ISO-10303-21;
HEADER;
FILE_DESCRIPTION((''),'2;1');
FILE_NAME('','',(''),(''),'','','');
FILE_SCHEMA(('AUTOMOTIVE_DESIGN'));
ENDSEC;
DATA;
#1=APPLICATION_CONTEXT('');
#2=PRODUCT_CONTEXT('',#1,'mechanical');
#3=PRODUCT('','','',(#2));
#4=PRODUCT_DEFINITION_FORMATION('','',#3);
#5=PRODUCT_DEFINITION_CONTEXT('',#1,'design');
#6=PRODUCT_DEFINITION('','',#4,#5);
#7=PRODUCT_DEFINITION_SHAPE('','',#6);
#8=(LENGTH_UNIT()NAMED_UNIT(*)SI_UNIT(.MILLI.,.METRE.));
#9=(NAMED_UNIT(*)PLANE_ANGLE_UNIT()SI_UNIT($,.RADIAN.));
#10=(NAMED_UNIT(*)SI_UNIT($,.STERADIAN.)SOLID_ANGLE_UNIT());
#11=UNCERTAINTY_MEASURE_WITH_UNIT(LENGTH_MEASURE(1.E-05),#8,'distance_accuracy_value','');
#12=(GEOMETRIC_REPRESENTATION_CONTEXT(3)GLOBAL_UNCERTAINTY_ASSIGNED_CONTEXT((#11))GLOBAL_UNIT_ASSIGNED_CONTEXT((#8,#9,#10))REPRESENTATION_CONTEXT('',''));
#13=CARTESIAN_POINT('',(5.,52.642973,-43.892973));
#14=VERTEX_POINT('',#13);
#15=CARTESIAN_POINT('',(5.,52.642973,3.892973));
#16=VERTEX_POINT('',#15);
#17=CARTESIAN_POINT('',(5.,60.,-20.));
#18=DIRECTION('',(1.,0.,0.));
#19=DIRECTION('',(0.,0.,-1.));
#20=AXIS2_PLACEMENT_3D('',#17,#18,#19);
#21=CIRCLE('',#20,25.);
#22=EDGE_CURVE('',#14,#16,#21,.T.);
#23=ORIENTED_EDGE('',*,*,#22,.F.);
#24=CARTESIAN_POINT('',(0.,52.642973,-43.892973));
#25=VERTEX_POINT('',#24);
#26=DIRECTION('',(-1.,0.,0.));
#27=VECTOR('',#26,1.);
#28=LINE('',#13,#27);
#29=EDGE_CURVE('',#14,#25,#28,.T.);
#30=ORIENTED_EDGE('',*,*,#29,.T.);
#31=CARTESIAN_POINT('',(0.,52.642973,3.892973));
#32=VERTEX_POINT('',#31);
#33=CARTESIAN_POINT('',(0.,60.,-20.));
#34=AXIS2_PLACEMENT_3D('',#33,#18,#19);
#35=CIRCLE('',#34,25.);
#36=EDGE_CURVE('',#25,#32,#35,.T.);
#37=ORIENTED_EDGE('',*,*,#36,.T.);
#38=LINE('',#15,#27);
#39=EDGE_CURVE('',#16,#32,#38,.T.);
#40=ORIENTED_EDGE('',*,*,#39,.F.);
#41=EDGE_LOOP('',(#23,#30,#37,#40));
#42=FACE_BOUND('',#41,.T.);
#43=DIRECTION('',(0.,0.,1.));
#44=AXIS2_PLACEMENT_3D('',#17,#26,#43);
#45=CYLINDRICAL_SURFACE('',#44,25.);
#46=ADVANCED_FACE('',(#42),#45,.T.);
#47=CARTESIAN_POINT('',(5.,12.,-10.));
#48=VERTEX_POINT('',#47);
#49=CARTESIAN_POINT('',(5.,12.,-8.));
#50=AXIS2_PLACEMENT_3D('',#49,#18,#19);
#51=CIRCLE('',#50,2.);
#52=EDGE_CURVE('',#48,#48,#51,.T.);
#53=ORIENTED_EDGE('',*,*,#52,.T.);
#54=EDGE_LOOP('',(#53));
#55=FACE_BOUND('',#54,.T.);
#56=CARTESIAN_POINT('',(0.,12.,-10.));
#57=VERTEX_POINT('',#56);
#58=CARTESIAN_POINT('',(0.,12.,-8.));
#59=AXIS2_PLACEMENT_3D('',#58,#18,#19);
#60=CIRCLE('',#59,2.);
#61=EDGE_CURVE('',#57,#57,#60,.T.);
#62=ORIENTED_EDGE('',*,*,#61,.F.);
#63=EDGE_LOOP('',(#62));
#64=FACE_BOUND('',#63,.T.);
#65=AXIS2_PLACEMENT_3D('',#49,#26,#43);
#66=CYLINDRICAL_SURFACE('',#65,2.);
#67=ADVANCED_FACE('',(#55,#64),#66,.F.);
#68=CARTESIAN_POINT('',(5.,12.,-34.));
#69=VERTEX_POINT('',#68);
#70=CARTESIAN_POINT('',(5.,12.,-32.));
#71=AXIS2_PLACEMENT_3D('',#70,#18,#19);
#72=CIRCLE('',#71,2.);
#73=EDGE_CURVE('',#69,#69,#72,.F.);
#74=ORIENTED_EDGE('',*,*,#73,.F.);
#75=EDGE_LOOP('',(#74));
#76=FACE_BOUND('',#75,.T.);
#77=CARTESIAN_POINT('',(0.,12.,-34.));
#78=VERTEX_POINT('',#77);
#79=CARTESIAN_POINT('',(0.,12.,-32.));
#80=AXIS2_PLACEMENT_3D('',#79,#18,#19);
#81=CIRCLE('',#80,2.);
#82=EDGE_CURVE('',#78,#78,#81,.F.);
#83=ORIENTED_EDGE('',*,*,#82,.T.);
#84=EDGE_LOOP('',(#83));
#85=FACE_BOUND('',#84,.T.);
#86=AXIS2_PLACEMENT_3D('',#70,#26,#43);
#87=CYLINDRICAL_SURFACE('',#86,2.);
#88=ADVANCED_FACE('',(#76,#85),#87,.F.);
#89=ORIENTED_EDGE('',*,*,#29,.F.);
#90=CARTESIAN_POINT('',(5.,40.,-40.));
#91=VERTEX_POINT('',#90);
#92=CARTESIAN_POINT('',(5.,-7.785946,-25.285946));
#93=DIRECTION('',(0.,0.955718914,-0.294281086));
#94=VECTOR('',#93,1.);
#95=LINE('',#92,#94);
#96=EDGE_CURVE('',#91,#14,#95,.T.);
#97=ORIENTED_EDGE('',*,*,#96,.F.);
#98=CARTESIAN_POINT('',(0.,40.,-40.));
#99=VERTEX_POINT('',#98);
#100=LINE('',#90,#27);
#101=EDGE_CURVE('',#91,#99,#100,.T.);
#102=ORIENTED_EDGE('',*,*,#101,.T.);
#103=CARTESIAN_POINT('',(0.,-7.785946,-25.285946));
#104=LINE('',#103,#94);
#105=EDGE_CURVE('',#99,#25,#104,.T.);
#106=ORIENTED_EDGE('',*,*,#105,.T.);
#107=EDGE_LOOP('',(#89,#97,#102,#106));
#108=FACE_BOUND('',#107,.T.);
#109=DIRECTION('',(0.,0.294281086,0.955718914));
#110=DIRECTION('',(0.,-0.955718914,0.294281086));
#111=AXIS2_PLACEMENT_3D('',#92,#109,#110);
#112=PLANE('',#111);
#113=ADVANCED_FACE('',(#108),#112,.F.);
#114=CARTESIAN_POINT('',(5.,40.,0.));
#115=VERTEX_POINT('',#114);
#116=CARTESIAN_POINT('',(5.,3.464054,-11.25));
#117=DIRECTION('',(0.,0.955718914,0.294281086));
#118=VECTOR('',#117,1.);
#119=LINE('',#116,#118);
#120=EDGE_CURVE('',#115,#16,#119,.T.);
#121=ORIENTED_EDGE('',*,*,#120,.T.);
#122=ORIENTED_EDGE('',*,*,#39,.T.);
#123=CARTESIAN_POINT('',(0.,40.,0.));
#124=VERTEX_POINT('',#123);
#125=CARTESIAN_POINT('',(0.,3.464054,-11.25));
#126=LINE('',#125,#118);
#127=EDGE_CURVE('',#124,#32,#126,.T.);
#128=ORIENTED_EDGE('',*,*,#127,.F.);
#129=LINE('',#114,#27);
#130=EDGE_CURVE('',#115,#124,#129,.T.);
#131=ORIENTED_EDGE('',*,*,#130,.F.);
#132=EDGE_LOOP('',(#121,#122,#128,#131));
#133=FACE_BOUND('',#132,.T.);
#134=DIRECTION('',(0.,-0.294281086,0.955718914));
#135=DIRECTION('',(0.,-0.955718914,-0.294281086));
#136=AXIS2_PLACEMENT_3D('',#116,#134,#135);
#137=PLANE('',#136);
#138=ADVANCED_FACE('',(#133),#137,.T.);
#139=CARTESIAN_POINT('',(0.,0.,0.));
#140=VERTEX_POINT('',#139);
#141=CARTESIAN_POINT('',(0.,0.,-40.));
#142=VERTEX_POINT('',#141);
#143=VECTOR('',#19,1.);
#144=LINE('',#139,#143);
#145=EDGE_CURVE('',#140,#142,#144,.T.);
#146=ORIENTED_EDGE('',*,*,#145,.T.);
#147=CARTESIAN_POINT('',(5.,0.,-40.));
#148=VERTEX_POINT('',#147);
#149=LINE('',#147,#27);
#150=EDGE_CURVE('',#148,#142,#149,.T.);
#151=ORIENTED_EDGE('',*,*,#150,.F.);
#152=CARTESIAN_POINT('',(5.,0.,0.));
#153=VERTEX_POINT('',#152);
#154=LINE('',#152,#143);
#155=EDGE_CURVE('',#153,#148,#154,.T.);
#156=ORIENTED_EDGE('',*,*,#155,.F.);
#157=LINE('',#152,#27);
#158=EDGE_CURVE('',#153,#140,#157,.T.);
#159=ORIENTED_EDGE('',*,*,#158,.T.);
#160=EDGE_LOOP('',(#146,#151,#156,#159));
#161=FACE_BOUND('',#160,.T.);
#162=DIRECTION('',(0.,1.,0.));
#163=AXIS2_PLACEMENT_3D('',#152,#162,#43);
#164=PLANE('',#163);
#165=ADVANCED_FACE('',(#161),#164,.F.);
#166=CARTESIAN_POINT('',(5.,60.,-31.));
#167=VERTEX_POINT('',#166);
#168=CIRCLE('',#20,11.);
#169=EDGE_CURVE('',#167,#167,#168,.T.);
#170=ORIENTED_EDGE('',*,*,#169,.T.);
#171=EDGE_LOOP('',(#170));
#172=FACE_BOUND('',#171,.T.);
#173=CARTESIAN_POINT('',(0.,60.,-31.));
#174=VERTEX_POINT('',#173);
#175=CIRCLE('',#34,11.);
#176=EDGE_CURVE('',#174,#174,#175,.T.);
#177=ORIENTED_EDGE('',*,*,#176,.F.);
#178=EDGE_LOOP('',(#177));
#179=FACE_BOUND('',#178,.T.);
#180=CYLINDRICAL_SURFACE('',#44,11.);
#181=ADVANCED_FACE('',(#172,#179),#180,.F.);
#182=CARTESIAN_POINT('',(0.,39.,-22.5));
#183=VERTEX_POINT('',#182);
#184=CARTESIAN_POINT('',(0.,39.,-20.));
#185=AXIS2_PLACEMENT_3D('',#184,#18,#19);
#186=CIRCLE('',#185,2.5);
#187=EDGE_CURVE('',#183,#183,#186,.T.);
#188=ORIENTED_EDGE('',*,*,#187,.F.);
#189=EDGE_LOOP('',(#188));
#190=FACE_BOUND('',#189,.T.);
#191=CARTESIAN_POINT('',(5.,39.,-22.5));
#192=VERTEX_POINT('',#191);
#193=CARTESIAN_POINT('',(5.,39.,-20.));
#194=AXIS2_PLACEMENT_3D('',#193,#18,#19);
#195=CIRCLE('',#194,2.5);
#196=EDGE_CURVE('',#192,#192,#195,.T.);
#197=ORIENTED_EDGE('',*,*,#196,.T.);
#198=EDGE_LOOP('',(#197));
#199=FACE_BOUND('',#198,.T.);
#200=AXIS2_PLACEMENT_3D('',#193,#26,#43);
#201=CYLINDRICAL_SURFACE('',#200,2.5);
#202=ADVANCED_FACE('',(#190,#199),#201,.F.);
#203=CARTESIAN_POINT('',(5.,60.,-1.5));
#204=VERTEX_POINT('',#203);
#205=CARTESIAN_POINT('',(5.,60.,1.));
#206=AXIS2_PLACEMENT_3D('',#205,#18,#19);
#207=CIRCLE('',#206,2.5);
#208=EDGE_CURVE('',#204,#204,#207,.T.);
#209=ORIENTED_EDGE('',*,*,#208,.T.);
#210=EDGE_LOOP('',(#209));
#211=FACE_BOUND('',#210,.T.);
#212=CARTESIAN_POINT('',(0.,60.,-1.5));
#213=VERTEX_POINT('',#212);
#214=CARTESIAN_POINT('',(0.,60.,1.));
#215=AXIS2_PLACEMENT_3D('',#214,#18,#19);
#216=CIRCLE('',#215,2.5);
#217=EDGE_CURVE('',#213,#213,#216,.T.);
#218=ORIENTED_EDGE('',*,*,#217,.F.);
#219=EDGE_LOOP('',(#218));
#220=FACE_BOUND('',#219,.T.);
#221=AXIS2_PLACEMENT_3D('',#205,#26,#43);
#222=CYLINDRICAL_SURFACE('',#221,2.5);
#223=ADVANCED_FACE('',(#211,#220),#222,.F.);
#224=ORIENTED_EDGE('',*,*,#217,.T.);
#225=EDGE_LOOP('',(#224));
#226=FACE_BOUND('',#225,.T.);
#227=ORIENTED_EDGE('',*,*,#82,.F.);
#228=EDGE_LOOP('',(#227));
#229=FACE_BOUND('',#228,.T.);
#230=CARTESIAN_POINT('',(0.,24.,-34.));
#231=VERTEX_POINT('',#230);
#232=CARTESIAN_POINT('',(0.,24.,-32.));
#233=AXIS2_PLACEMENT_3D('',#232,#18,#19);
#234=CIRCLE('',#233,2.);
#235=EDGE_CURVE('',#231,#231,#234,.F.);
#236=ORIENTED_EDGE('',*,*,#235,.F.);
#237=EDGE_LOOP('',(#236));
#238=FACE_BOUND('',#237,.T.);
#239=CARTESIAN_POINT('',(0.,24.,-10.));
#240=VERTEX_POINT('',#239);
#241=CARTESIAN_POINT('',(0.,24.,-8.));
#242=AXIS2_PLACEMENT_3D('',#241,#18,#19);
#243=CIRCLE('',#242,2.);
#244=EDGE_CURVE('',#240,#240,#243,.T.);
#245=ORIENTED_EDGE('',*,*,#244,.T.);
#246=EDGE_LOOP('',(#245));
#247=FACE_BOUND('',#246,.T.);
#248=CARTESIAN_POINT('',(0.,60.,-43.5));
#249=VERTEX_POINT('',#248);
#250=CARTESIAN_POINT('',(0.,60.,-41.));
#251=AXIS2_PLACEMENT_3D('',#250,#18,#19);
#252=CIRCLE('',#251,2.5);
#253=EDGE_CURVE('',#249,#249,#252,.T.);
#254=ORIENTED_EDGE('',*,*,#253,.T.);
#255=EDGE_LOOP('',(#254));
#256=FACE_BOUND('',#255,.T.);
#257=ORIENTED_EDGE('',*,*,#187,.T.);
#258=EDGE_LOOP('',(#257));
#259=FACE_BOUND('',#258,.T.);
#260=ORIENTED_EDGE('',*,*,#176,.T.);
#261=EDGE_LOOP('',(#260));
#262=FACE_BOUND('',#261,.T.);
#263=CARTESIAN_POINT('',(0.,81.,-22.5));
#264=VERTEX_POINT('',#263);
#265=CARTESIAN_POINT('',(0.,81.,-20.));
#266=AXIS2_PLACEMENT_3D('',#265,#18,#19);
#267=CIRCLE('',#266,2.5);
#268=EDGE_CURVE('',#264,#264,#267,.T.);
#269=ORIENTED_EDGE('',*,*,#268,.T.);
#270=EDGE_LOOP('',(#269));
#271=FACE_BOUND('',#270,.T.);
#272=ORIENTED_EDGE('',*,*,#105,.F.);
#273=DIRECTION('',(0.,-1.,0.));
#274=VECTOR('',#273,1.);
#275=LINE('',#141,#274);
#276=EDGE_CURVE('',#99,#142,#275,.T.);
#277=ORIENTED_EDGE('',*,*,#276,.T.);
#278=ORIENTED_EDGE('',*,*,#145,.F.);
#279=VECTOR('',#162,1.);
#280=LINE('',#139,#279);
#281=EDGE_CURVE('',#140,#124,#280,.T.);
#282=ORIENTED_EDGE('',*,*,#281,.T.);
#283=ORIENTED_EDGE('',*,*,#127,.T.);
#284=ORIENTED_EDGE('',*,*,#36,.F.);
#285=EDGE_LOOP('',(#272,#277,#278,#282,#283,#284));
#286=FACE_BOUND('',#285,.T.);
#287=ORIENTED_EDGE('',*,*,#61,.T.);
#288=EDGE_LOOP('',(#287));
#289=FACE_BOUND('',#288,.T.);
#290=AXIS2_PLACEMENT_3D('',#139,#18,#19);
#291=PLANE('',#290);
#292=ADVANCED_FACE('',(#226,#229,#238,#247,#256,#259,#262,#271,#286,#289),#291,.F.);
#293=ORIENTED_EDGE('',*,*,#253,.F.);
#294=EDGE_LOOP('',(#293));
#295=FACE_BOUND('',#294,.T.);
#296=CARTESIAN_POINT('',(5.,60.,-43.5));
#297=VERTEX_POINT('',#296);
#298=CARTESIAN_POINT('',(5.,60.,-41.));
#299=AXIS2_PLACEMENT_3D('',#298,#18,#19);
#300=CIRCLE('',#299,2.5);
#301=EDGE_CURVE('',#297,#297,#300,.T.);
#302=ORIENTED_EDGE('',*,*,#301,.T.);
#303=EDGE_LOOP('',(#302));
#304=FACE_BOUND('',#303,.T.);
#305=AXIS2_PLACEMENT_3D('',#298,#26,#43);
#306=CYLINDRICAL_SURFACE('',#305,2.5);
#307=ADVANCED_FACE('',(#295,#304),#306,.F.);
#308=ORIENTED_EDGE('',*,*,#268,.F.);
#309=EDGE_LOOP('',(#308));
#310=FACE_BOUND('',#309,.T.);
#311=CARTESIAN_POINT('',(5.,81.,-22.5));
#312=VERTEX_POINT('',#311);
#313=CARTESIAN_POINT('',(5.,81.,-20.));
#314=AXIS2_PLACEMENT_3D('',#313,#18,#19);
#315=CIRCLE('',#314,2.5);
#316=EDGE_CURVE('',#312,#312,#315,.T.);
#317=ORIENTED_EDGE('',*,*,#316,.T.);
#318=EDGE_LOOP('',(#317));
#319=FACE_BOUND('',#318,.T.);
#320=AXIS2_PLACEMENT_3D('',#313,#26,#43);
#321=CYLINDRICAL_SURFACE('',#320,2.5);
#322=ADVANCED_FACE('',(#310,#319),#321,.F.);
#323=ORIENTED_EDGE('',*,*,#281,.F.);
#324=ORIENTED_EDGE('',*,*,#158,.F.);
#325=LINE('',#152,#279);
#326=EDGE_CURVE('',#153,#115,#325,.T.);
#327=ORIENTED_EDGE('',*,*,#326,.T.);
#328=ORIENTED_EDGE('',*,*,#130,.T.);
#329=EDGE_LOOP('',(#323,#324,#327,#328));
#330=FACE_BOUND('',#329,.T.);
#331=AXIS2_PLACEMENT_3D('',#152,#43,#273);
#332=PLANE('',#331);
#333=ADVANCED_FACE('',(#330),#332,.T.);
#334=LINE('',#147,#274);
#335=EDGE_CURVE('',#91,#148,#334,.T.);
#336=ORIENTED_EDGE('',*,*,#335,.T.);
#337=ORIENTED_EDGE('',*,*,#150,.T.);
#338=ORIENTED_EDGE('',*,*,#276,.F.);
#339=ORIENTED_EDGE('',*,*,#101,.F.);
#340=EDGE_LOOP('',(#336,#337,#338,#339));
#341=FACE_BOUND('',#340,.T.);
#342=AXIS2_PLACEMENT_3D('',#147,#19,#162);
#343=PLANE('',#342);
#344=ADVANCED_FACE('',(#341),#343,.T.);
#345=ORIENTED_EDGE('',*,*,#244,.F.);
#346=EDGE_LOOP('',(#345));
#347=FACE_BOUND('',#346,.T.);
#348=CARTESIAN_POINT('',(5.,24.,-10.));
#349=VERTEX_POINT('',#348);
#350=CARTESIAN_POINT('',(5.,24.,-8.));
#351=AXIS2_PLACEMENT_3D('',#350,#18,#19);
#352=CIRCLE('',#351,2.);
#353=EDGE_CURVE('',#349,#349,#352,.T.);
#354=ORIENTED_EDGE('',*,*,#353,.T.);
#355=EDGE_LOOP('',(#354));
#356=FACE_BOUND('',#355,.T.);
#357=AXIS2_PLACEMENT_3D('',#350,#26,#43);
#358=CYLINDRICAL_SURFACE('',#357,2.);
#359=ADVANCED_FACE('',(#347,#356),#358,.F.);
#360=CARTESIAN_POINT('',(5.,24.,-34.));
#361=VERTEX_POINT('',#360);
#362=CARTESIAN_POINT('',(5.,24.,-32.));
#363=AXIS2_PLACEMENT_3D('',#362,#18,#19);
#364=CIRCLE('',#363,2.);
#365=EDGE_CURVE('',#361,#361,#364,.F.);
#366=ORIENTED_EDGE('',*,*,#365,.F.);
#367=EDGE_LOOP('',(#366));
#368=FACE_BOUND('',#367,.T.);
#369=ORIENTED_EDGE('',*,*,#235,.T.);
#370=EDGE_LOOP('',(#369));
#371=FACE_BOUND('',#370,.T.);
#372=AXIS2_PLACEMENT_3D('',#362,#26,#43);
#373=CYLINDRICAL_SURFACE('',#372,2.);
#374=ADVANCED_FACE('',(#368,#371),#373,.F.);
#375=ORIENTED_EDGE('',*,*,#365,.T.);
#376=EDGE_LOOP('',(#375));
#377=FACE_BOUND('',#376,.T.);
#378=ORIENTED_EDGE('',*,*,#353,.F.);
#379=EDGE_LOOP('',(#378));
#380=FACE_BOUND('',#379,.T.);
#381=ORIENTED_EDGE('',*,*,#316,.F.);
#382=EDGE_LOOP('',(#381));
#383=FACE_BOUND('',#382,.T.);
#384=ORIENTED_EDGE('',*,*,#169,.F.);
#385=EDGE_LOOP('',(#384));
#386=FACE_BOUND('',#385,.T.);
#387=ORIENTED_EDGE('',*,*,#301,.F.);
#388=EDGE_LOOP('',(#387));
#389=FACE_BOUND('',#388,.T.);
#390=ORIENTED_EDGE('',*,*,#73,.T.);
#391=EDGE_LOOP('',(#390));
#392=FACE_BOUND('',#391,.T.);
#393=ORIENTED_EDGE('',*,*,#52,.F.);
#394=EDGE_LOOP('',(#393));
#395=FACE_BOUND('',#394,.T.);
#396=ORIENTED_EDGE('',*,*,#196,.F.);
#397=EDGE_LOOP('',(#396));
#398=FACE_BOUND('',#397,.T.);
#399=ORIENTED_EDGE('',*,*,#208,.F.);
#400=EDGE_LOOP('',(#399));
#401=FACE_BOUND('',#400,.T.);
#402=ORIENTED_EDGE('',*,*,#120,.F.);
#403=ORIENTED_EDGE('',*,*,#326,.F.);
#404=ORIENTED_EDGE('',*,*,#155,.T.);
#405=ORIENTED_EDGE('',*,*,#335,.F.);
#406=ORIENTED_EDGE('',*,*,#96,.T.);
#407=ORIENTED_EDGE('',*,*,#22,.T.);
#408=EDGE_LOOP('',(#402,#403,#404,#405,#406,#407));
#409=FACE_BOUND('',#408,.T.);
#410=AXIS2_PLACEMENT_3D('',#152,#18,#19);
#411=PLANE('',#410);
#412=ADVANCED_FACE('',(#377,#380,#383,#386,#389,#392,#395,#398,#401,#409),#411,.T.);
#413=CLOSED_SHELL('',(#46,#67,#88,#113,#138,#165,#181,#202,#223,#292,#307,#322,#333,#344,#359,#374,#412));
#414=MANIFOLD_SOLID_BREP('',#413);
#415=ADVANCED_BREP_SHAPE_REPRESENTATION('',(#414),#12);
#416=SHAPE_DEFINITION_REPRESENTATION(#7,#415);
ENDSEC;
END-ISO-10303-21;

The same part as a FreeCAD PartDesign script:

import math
import FreeCAD as App
import Part
import Sketcher

doc = App.newDocument("Part")
body = doc.addObject("PartDesign::Body", "Body")

# Sketch on YZ plane
sketch1 = body.newObject("Sketcher::SketchObject", "Sketch")
sketch1.AttachmentSupport = (doc.getObject("YZ_Plane"), [""])
sketch1.MapMode = "FlatFace"
sketch1.addGeometry(Part.ArcOfCircle(Part.Circle(App.Vector(60, -20, 0), App.Vector(0, 0, 1), 25), math.radians(-107), math.radians(107)), False)
sketch1.addGeometry(Part.LineSegment(App.Vector(52.6, 3.9, 0), App.Vector(40, 0, 0)), False)
sketch1.addGeometry(Part.LineSegment(App.Vector(40, 0, 0), App.Vector(0, 0, 0)), False)
sketch1.addGeometry(Part.LineSegment(App.Vector(0, 0, 0), App.Vector(0, -40, 0)), False)
sketch1.addGeometry(Part.LineSegment(App.Vector(0, -40, 0), App.Vector(40, -40, 0)), False)
sketch1.addGeometry(Part.LineSegment(App.Vector(40, -40, 0), App.Vector(52.6, -43.9, 0)), False)
sketch1.addGeometry(Part.Circle(App.Vector(12, -8, 0), App.Vector(0, 0, 1), 2), False)
sketch1.addGeometry(Part.Circle(App.Vector(24, -8, 0), App.Vector(0, 0, 1), 2), False)
sketch1.addGeometry(Part.Circle(App.Vector(12, -32, 0), App.Vector(0, 0, 1), 2), False)
sketch1.addGeometry(Part.Circle(App.Vector(24, -32, 0), App.Vector(0, 0, 1), 2), False)
sketch1.addGeometry(Part.Circle(App.Vector(39, -20, 0), App.Vector(0, 0, 1), 2.5), False)
sketch1.addGeometry(Part.Circle(App.Vector(60, 1, 0), App.Vector(0, 0, 1), 2.5), False)
sketch1.addGeometry(Part.Circle(App.Vector(60, -20, 0), App.Vector(0, 0, 1), 11), False)
sketch1.addGeometry(Part.Circle(App.Vector(60, -41, 0), App.Vector(0, 0, 1), 2.5), False)
sketch1.addGeometry(Part.Circle(App.Vector(81, -20, 0), App.Vector(0, 0, 1), 2.5), False)
sketch1.addConstraint(Sketcher.Constraint("Tangent", 0, 2, 1, 1))
sketch1.addConstraint(Sketcher.Constraint("Coincident", 1, 2, 2, 1))
sketch1.addConstraint(Sketcher.Constraint("Coincident", 2, 2, 3, 1))
sketch1.addConstraint(Sketcher.Constraint("Coincident", 3, 2, 4, 1))
sketch1.addConstraint(Sketcher.Constraint("Coincident", 4, 2, 5, 1))
sketch1.addConstraint(Sketcher.Constraint("Tangent", 5, 2, 0, 1))
sketch1.addConstraint(Sketcher.Constraint("Horizontal", 2))
sketch1.addConstraint(Sketcher.Constraint("Vertical", 3))
sketch1.addConstraint(Sketcher.Constraint("Horizontal", 4))
sketch1.addConstraint(Sketcher.Constraint("Coincident", 2, 2, -1, 1))
sketch1.addConstraint(Sketcher.Constraint("Coincident", 12, 3, 0, 3))
sketch1.addConstraint(Sketcher.Constraint("Equal", 6, 7))
sketch1.addConstraint(Sketcher.Constraint("Equal", 7, 8))
sketch1.addConstraint(Sketcher.Constraint("Equal", 8, 9))
sketch1.addConstraint(Sketcher.Constraint("Equal", 10, 11))
sketch1.addConstraint(Sketcher.Constraint("Equal", 11, 13))
sketch1.addConstraint(Sketcher.Constraint("Equal", 13, 14))
sketch1.addConstraint(Sketcher.Constraint("Horizontal", 6, 3, 7, 3))
sketch1.addConstraint(Sketcher.Constraint("Horizontal", 8, 3, 9, 3))
sketch1.addConstraint(Sketcher.Constraint("Horizontal", 0, 3, 10, 3))
sketch1.addConstraint(Sketcher.Constraint("Horizontal", 12, 3, 14, 3))
sketch1.addConstraint(Sketcher.Constraint("Vertical", 6, 3, 8, 3))
sketch1.addConstraint(Sketcher.Constraint("Vertical", 7, 3, 9, 3))
sketch1.addConstraint(Sketcher.Constraint("Vertical", 0, 3, 11, 3))
sketch1.addConstraint(Sketcher.Constraint("Vertical", 12, 3, 13, 3))
sketch1.addConstraint(Sketcher.Constraint("Vertical", 1, 2, 4, 2))
sketch1.addConstraint(Sketcher.Constraint("Vertical", 0, 2, 5, 2))
sketch1.addConstraint(Sketcher.Constraint("Equal", 4, 3))
sketch1.addConstraint(Sketcher.Constraint("Diameter", 6, 4.0))
sketch1.addConstraint(Sketcher.Constraint("Diameter", 10, 5.0))
sketch1.addConstraint(Sketcher.Constraint("Diameter", 12, 22.0))
sketch1.addConstraint(Sketcher.Constraint("Radius", 0, 25.0))
sketch1.addConstraint(Sketcher.Constraint("DistanceX", 2, 2, 2, 1, 40.0))
sketch1.addConstraint(Sketcher.Constraint("DistanceX", -1, 1, 0, 3, 60.0))
sketch1.addConstraint(Sketcher.Constraint("DistanceX", -1, 1, 6, 3, 12.0))
sketch1.addConstraint(Sketcher.Constraint("DistanceY", 6, 3, -1, 1, 8.0))
sketch1.addConstraint(Sketcher.Constraint("DistanceX", -1, 1, 7, 3, 24.0))
sketch1.addConstraint(Sketcher.Constraint("DistanceY", 8, 3, -1, 1, 32.0))
sketch1.addConstraint(Sketcher.Constraint("DistanceX", -1, 1, 10, 3, 39.0))
sketch1.addConstraint(Sketcher.Constraint("DistanceY", -1, 1, 11, 3, 1.0))
sketch1.addConstraint(Sketcher.Constraint("DistanceY", 13, 3, -1, 1, 41.0))
sketch1.addConstraint(Sketcher.Constraint("DistanceX", -1, 1, 14, 3, 81.0))
pad1 = body.newObject("PartDesign::Pad", "Pad")
pad1.Profile = sketch1
pad1.Length = 5

doc.recompute()
